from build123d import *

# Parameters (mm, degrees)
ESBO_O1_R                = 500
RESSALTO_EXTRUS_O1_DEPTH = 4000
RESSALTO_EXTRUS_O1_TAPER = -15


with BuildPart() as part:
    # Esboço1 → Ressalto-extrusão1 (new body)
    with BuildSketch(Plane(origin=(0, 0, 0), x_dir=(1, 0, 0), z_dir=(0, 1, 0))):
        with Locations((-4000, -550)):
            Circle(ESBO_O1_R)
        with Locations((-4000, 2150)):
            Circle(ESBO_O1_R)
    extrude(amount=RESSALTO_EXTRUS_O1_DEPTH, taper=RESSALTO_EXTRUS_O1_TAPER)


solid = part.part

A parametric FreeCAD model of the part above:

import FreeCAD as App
import Part
import Sketcher

V = App.Vector
Q = App.Units.Quantity

doc = App.newDocument("Part")
body = doc.addObject("PartDesign::Body", "Body")

# Sketch on XZ plane
sketch1 = doc.addObject("Sketcher::SketchObject", "Sketch")
body.addObject(sketch1)
sketch1.AttachmentSupport = (doc.XZ_Plane, [""])
sketch1.MapMode = "FlatFace"
sketch1.addGeometry([
    Part.Circle(V(-4000, 550, 0), V(0, 0, 1), 500),
    Part.Circle(V(-4000, -2150, 0), V(0, 0, 1), 500),
], False)
sketch1.addConstraint([
    Sketcher.Constraint("Equal", 0, 1),
    Sketcher.Constraint("Vertical", 0, 3, 1, 3),
    Sketcher.Constraint("Diameter", 0, Q("1000 mm")),
    Sketcher.Constraint("DistanceX", 0, 3, -1, 1, Q("4000 mm")),
    Sketcher.Constraint("DistanceY", -1, 1, 0, 3, Q("550 mm")),
    Sketcher.Constraint("DistanceY", 1, 3, -1, 1, Q("2150 mm")),
])
pad1 = doc.addObject("PartDesign::Pad", "Pad")
body.addObject(pad1)
pad1.Profile = sketch1
pad1.Length = 4000
pad1.Reversed = True
pad1.TaperAngle = 15

doc.recompute()
